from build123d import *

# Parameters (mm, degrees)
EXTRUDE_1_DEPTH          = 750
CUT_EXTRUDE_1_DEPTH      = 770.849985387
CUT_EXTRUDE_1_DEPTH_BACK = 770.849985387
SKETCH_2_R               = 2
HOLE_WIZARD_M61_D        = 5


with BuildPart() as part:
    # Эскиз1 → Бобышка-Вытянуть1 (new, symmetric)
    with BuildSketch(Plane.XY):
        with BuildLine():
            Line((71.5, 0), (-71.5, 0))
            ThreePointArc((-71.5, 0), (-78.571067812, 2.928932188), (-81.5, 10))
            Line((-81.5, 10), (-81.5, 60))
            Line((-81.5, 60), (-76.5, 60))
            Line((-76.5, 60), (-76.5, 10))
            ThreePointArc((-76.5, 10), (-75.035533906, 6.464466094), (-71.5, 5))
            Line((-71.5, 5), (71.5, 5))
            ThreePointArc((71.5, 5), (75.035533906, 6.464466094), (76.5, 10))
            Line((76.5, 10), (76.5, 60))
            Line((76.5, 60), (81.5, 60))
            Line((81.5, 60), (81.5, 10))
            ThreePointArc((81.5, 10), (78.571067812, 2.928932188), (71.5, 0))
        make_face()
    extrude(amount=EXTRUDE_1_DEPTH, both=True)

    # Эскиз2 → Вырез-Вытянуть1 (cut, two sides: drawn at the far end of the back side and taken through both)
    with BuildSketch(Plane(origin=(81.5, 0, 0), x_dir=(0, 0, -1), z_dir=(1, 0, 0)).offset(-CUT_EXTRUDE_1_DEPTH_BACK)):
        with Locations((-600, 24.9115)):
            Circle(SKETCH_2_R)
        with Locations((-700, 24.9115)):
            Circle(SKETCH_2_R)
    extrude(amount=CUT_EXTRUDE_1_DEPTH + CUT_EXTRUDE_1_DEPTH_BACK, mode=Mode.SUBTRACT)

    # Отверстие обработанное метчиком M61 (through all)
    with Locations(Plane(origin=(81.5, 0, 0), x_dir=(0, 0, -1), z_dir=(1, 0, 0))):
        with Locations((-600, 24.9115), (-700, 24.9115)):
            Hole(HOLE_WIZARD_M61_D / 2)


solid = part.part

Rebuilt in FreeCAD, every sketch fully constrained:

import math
import FreeCAD as App
import Part
import Sketcher

V = App.Vector
Q = App.Units.Quantity

doc = App.newDocument("Part")
params = doc.addObject("Spreadsheet::Sheet", "Params")
for row, (alias, value) in enumerate([
    ("sketch1_radius", "10 mm"),
    ("sketch1_radius2", "5 mm"),
    ("sketch1_width", "143 mm"),
    ("sketch1_height", "50 mm"),
    ("pad1_length", "1500 mm"),
    ("sketch2_diameter", "4 mm"),
    ("sketch3_diameter", "5 mm"),
    ("hole_diameter", "5 mm"),
], start=1):
    params.set(f"A{row}", alias)
    params.set(f"B{row}", "=" + value)
    params.setAlias(f"B{row}", alias)

body = doc.addObject("PartDesign::Body", "Body")

sketch1 = body.newObject("Sketcher::SketchObject", "Sketch")
sketch1.AttachmentSupport = (doc.getObject("XY_Plane"), [""])
sketch1.MapMode = "FlatFace"
sketch1.addGeometry([
    Part.LineSegment(V(-71.5, 0, 0), V(71.5, 0, 0)),
    Part.ArcOfCircle(Part.Circle(V(71.5, 10, 0), V(0, 0, 1), 10), math.radians(-90), math.radians(0)),
    Part.LineSegment(V(81.5, 10, 0), V(81.5, 60, 0)),
    Part.LineSegment(V(81.5, 60, 0), V(76.5, 60, 0)),
    Part.LineSegment(V(76.5, 60, 0), V(76.5, 10, 0)),
    Part.ArcOfCircle(Part.Circle(V(71.5, 10, 0), V(0, 0, 1), 5), math.radians(-90), math.radians(0)),
    Part.LineSegment(V(71.5, 5, 0), V(-71.5, 5, 0)),
    Part.ArcOfCircle(Part.Circle(V(-71.5, 10, 0), V(0, 0, 1), 5), math.radians(180), math.radians(270)),
    Part.LineSegment(V(-76.5, 10, 0), V(-76.5, 60, 0)),
    Part.LineSegment(V(-76.5, 60, 0), V(-81.5, 60, 0)),
    Part.LineSegment(V(-81.5, 60, 0), V(-81.5, 10, 0)),
    Part.ArcOfCircle(Part.Circle(V(-71.5, 10, 0), V(0, 0, 1), 10), math.radians(180), math.radians(270)),
], False)
sketch1.addConstraint([
    Sketcher.Constraint("Tangent", 0, 2, 1, 1),
    Sketcher.Constraint("Tangent", 1, 2, 2, 1),
    Sketcher.Constraint("Coincident", 2, 2, 3, 1),
    Sketcher.Constraint("Coincident", 3, 2, 4, 1),
    Sketcher.Constraint("Tangent", 4, 2, 5, 2),
    Sketcher.Constraint("Tangent", 5, 1, 6, 1),
    Sketcher.Constraint("Tangent", 6, 2, 7, 2),
    Sketcher.Constraint("Tangent", 7, 1, 8, 1),
    Sketcher.Constraint("Coincident", 8, 2, 9, 1),
    Sketcher.Constraint("Coincident", 9, 2, 10, 1),
    Sketcher.Constraint("Tangent", 10, 2, 11, 1),
    Sketcher.Constraint("Tangent", 11, 2, 0, 1),
    Sketcher.Constraint("Horizontal", 0),
    Sketcher.Constraint("Vertical", 2),
    Sketcher.Constraint("Horizontal", 3),
    Sketcher.Constraint("Vertical", 4),
    Sketcher.Constraint("Horizontal", 6),
    Sketcher.Constraint("Vertical", 8),
    Sketcher.Constraint("Horizontal", 9),
    Sketcher.Constraint("Vertical", 10),
    Sketcher.Constraint("Coincident", 5, 3, 1, 3),
    Sketcher.Constraint("Coincident", 11, 3, 7, 3),
    Sketcher.Constraint("Equal", 5, 7),
    Sketcher.Constraint("Symmetric", 0, 2, 11, 2, -1, 1),
    Sketcher.Constraint("Horizontal", 3, 2, 8, 2),
    Sketcher.Constraint("Radius", 1, Q("10 mm")),
    Sketcher.Constraint("Radius", 5, Q("5 mm")),
    Sketcher.Constraint("DistanceX", 0, 1, 0, 2, Q("143 mm")),
    Sketcher.Constraint("DistanceY", 2, 1, 2, 2, Q("50 mm")),
])
sketch1.setExpression("Constraints[25]", "Params.sketch1_radius")
sketch1.setExpression("Constraints[26]", "Params.sketch1_radius2")
sketch1.setExpression("Constraints[27]", "Params.sketch1_width")
sketch1.setExpression("Constraints[28]", "Params.sketch1_height")
pad1 = body.newObject("PartDesign::Pad", "Pad")
pad1.Profile = sketch1
pad1.setExpression("Length", "Params.pad1_length")
pad1.Midplane = True

sketch2 = body.newObject("Sketcher::SketchObject", "Sketch001")
sketch2.AttachmentSupport = (doc.getObject("YZ_Plane"), [""])
sketch2.MapMode = "FlatFace"
sketch2.AttachmentOffset = App.Placement(V(0, 0, 81.5), App.Rotation())
sketch2.addGeometry([
    Part.Circle(V(24.9115, 600, 0), V(0, 0, 1), 2),
    Part.Circle(V(24.9115, 700, 0), V(0, 0, 1), 2),
], False)
sketch2.addConstraint([
    Sketcher.Constraint("Equal", 0, 1),
    Sketcher.Constraint("Vertical", 0, 3, 1, 3),
    Sketcher.Constraint("Diameter", 0, Q("4 mm")),
    Sketcher.Constraint("DistanceY", -1, 1, 0, 3, Q("600 mm")),
    Sketcher.Constraint("DistanceY", -1, 1, 1, 3, Q("700 mm")),
    Sketcher.Constraint("DistanceX", -1, 1, 0, 3, Q("24.9115 mm")),
])
sketch2.setExpression("Constraints[2]", "Params.sketch2_diameter")
pocket1 = body.newObject("PartDesign::Pocket", "Pocket")
pocket1.Profile = sketch2
pocket1.Type = "ThroughAll"
pocket1.Midplane = True

sketch3 = body.newObject("Sketcher::SketchObject", "Sketch002")
sketch3.AttachmentSupport = (doc.getObject("YZ_Plane"), [""])
sketch3.MapMode = "FlatFace"
sketch3.AttachmentOffset = App.Placement(V(0, 0, 81.5), App.Rotation())
sketch3.addGeometry([
    Part.Circle(V(24.9115, 600, 0), V(0, 0, 1), 2.5),
    Part.Circle(V(24.9115, 700, 0), V(0, 0, 1), 2.5),
], False)
sketch3.addConstraint([
    Sketcher.Constraint("Equal", 0, 1),
    Sketcher.Constraint("Vertical", 0, 3, 1, 3),
    Sketcher.Constraint("Diameter", 0, Q("5 mm")),
    Sketcher.Constraint("DistanceY", -1, 1, 0, 3, Q("600 mm")),
    Sketcher.Constraint("DistanceY", -1, 1, 1, 3, Q("700 mm")),
    Sketcher.Constraint("DistanceX", -1, 1, 0, 3, Q("24.9115 mm")),
])
sketch3.setExpression("Constraints[2]", "Params.sketch3_diameter")
doc.recompute()
hole = body.newObject("PartDesign::Hole", "Hole")
hole.Profile = sketch3
hole.ThreadType = "None"
hole.setExpression("Diameter", "Params.hole_diameter")
hole.DepthType = "ThroughAll"

doc.recompute()
